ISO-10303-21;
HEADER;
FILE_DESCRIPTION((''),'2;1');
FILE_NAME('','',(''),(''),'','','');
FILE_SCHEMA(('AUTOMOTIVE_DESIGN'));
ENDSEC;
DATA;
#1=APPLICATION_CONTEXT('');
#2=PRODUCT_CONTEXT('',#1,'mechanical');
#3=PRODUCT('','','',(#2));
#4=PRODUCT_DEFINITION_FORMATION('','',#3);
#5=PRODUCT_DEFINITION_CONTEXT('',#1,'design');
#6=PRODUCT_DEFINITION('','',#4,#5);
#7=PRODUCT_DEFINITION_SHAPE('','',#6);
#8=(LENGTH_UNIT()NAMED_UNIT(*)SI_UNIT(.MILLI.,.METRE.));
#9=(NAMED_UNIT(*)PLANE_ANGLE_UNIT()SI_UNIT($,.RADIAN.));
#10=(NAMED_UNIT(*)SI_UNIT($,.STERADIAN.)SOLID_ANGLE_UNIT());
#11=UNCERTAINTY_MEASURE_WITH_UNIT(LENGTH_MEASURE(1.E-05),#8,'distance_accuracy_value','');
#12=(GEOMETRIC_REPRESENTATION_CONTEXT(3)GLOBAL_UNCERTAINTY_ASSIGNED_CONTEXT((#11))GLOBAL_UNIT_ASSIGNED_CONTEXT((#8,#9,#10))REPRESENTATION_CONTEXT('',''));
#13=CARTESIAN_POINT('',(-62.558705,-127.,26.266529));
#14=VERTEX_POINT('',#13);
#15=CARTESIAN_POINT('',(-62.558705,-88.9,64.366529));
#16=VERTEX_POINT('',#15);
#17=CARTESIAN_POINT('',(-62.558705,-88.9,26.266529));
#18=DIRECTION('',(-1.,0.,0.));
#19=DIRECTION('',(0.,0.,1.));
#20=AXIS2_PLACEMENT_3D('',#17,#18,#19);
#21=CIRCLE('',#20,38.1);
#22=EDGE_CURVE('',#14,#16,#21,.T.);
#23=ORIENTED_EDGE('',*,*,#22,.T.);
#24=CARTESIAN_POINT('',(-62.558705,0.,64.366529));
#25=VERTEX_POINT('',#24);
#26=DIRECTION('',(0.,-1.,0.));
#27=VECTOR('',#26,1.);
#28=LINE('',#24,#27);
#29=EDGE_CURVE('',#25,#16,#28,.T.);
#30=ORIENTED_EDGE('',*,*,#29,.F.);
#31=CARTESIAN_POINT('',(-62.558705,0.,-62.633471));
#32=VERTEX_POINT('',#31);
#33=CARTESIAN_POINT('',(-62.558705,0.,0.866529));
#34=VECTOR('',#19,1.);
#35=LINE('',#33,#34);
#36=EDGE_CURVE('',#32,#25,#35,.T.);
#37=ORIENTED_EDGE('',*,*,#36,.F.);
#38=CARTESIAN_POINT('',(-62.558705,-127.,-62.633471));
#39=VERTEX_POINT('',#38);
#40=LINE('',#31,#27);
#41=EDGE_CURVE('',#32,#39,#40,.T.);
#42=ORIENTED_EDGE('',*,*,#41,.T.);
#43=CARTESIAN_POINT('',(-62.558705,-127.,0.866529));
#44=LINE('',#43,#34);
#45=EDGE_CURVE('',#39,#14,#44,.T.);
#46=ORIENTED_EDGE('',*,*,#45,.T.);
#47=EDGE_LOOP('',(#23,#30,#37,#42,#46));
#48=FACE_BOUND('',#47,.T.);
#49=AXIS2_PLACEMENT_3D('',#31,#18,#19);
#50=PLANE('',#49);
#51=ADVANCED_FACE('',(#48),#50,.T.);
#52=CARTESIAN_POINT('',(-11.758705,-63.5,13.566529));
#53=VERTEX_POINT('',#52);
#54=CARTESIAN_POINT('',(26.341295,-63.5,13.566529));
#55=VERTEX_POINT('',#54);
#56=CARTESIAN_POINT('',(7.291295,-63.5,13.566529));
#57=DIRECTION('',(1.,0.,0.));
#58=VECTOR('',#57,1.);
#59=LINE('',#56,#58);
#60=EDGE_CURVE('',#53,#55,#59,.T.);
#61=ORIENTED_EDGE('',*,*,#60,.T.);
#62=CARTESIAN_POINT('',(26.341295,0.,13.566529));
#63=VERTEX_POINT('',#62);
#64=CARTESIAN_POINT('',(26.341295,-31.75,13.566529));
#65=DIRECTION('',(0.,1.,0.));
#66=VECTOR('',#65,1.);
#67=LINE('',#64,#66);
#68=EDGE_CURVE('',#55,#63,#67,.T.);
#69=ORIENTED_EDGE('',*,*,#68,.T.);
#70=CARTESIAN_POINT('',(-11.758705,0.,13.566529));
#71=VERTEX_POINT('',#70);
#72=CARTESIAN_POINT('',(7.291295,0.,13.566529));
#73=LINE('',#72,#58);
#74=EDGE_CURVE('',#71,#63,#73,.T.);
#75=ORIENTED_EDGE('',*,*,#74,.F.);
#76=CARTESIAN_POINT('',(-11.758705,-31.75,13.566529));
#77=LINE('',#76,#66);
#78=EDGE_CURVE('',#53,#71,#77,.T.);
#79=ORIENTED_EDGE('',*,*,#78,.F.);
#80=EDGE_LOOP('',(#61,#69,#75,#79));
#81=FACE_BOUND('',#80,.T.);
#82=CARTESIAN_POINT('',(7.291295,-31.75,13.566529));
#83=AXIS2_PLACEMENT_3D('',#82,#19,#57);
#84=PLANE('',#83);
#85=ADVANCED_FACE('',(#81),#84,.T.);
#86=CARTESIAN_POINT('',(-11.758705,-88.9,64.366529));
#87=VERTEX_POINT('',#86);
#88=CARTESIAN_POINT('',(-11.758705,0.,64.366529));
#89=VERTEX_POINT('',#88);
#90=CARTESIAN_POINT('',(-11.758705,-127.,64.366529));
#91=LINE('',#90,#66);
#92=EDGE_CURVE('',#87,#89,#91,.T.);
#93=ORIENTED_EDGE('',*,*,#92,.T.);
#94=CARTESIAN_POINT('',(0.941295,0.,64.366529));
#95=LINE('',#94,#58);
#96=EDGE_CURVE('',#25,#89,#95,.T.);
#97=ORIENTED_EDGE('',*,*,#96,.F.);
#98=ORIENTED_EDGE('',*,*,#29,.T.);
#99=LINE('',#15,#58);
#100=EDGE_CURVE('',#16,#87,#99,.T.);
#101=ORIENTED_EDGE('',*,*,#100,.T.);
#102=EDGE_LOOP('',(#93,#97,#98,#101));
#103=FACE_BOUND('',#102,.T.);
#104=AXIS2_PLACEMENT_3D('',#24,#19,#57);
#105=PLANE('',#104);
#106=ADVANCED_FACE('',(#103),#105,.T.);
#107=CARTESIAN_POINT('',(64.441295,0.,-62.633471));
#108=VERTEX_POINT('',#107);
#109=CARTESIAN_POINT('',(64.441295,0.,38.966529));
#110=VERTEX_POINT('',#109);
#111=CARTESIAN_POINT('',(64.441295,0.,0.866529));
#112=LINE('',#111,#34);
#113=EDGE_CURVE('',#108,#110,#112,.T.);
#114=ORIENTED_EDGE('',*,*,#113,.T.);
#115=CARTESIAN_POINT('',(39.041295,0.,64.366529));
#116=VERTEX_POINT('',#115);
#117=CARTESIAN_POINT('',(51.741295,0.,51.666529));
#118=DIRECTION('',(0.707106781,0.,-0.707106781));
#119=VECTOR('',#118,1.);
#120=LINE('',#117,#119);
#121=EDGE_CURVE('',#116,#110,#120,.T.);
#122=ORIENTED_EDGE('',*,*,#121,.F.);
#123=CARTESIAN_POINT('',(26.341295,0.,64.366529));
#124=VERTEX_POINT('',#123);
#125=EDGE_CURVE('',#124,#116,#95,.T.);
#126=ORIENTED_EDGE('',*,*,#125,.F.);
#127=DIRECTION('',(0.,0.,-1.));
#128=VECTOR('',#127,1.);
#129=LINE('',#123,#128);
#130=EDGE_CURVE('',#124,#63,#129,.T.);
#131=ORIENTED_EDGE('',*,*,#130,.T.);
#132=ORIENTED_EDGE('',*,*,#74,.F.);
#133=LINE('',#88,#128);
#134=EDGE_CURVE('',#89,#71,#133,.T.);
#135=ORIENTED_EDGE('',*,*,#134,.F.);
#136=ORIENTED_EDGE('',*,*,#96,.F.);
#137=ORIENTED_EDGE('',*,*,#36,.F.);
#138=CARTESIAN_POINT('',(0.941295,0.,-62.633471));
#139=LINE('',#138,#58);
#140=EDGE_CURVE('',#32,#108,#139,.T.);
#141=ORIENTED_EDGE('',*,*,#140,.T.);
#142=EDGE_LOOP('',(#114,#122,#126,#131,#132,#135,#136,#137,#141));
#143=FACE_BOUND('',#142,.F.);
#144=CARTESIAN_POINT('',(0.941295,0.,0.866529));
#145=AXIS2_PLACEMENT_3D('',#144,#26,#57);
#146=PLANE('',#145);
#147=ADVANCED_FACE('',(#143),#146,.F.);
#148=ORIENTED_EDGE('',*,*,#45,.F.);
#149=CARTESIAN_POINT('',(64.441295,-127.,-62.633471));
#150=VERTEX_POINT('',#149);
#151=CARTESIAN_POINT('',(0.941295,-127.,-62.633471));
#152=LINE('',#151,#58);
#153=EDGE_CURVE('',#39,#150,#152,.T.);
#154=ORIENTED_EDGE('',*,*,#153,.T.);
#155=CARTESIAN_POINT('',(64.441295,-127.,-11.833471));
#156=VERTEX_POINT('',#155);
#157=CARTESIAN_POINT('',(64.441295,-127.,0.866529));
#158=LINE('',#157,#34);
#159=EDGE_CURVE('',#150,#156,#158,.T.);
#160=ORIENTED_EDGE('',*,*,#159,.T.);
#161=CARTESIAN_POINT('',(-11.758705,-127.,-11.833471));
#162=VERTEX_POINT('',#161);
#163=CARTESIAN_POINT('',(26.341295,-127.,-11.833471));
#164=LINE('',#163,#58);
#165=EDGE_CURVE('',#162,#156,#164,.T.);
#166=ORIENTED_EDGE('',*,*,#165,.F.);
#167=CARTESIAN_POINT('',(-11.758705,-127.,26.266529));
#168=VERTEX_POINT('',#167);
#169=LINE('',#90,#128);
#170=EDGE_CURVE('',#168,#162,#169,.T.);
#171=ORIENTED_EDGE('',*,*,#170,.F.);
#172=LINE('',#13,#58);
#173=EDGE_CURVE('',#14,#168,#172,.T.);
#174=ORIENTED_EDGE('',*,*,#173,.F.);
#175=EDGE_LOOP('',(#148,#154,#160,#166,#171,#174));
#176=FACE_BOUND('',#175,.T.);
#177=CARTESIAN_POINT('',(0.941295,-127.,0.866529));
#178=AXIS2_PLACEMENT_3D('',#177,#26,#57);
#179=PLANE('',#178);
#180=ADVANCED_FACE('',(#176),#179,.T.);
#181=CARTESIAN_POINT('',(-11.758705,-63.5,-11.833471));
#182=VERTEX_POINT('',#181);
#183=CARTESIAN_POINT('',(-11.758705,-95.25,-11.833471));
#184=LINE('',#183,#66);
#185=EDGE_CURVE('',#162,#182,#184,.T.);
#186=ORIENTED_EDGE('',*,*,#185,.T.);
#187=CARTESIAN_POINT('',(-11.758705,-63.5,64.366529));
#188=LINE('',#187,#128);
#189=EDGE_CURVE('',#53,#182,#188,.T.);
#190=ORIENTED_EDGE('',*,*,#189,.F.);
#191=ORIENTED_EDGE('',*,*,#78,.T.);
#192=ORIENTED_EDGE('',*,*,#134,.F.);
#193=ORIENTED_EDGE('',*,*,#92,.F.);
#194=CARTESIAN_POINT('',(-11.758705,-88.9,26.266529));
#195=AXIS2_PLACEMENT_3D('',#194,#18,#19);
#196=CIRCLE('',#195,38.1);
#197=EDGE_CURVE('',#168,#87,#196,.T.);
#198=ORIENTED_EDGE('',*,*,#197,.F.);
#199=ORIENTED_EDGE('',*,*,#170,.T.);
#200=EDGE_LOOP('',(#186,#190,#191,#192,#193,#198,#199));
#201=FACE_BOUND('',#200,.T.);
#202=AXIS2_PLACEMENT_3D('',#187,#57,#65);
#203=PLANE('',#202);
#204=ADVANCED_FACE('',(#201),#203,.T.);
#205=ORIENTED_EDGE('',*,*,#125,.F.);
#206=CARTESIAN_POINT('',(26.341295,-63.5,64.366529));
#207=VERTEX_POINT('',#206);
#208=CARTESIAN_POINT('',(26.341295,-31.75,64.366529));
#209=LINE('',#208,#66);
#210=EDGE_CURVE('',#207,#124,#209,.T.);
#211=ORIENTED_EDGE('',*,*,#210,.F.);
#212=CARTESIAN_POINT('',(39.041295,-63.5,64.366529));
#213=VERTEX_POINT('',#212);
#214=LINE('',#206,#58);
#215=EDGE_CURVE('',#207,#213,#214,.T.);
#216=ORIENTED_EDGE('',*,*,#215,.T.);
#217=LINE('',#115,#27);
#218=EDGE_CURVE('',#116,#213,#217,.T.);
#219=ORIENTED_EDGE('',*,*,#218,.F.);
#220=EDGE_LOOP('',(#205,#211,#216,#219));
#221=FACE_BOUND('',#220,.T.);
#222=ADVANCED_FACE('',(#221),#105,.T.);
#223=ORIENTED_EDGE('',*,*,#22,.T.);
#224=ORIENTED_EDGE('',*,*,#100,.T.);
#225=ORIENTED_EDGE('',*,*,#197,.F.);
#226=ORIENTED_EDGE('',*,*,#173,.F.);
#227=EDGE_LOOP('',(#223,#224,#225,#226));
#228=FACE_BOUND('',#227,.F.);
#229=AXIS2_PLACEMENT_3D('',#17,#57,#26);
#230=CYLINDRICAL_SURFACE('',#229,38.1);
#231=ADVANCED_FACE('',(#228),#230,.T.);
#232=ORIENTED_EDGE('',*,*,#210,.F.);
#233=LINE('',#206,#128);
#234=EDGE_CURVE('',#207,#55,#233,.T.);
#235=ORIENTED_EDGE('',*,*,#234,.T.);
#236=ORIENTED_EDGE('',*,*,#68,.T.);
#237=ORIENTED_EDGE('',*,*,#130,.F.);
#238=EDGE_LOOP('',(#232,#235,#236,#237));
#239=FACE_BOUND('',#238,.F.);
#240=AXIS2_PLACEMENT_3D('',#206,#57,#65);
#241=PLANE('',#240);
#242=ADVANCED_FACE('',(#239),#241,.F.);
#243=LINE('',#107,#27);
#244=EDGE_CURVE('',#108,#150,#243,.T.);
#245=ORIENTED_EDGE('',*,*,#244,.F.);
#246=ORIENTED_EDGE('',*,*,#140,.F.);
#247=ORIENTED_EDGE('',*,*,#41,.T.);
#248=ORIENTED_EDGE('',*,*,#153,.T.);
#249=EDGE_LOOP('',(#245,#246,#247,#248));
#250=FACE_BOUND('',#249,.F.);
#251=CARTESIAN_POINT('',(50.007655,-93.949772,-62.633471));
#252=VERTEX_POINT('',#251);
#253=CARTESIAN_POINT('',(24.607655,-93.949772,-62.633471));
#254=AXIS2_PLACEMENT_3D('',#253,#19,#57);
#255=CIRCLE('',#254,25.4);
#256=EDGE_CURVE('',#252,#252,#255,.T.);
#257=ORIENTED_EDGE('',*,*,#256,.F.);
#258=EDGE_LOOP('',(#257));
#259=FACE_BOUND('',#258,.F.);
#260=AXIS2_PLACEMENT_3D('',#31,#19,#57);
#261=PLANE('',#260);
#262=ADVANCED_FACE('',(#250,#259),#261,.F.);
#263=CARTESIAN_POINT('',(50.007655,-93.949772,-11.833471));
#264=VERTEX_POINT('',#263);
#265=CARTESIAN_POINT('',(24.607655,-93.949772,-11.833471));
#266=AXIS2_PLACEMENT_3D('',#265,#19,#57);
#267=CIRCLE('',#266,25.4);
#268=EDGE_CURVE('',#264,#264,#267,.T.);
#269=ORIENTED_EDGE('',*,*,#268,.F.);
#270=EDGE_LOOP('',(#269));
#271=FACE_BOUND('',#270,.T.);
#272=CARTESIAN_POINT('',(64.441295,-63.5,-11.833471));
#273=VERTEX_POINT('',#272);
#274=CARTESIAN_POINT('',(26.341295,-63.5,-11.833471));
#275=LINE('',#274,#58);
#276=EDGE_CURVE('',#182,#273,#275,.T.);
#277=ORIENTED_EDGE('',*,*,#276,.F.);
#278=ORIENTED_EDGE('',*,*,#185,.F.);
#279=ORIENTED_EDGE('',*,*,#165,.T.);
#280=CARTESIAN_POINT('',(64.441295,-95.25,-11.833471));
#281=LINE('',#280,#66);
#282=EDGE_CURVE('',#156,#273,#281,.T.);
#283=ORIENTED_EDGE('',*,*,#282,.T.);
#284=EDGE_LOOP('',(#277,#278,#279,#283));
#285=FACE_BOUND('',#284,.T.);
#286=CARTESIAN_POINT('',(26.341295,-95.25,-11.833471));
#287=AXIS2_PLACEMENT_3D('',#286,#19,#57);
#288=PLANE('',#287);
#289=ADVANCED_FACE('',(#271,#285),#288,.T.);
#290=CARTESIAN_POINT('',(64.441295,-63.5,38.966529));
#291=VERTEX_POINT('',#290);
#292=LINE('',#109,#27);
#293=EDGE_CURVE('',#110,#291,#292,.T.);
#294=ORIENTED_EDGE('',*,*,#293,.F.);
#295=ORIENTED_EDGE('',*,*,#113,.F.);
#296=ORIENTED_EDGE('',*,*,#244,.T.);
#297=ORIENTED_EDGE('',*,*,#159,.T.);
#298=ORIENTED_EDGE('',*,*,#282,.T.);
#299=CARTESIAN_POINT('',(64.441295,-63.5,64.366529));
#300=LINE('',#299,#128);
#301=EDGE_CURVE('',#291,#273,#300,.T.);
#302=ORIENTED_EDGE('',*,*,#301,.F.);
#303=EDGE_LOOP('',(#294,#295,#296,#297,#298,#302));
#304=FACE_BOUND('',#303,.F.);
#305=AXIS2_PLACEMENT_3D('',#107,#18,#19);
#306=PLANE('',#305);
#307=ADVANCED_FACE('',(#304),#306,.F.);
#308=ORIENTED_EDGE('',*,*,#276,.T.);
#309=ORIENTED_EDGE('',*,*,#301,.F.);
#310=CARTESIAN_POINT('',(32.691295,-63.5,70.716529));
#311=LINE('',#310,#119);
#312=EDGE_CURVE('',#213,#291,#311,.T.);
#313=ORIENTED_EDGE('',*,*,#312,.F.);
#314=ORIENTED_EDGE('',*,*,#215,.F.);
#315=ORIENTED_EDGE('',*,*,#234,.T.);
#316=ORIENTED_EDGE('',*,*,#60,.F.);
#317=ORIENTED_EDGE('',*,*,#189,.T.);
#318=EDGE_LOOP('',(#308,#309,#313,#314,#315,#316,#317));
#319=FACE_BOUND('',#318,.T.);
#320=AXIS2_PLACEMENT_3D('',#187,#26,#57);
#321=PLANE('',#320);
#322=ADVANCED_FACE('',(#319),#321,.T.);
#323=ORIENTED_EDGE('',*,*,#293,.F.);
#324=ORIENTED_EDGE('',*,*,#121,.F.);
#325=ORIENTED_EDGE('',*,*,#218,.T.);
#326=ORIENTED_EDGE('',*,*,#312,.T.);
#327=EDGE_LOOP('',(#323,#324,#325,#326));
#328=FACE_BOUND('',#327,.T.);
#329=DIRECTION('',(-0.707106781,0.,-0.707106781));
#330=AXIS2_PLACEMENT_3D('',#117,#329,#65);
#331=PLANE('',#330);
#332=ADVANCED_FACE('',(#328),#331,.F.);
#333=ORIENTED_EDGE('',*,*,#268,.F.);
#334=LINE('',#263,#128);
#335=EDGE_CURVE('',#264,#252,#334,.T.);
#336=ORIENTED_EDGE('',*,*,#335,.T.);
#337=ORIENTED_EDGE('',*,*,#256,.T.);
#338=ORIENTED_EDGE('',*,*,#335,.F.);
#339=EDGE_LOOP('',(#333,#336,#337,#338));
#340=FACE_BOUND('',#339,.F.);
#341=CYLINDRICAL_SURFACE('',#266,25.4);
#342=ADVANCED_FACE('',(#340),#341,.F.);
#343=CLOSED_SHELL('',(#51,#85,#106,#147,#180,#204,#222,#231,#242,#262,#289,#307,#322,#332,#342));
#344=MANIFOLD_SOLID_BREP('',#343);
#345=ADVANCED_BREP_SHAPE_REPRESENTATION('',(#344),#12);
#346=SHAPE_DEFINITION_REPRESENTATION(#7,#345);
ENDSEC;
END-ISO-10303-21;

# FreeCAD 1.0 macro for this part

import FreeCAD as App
import Part
import Sketcher

V = App.Vector
Q = App.Units.Quantity


def edges_at(feature, points):
    """Names of the edges that pass closest to the given points."""
    edges = feature.Shape.Edges
    near = lambda p: min(range(len(edges)), key=lambda i: edges[i].distToShape(Part.Vertex(*p))[0])
    return sorted({f"Edge{near(p) + 1}" for p in points})


def add_polygon(sketch, points):
    """Adds a closed chain of lines whose ends are joined by coincident constraints."""
    first, n = sketch.GeometryCount, len(points)
    for a, b in zip(points, points[1:] + points[:1]):
        sketch.addGeometry(Part.LineSegment(App.Vector(*a, 0), App.Vector(*b, 0)), False)
    for i in range(n):
        sketch.addConstraint(Sketcher.Constraint("Coincident", first + i, 2, first + (i + 1) % n, 1))

doc = App.newDocument("Part")
body = doc.addObject("PartDesign::Body", "Body")

# Sketch on XZ plane
sketch1 = body.newObject("Sketcher::SketchObject", "Sketch")
sketch1.AttachmentSupport = (doc.getObject("XZ_Plane"), [""])
sketch1.MapMode = "FlatFace"
add_polygon(sketch1, [(-62.558705, 64.366529), (-62.558705, -62.633471), (64.441295, -62.633471), (64.441295, 64.366529)])  # lines 0-3
sketch1.addConstraint([
    Sketcher.Constraint("Vertical", 0),
    Sketcher.Constraint("Horizontal", 1),
    Sketcher.Constraint("Vertical", 2),
    Sketcher.Constraint("Horizontal", 3),
    Sketcher.Constraint("Equal", 3, 0),
    Sketcher.Constraint("DistanceX", 1, 1, 1, 2, Q("5 in")),
    Sketcher.Constraint("DistanceY", 0, 2, -1, 1, Q("62.633471 mm")),
    Sketcher.Constraint("DistanceX", 0, 2, -1, 1, Q("62.558705 mm")),
])
pad1 = body.newObject("PartDesign::Pad", "Pad")
pad1.Profile = sketch1
pad1.Length = Q("5 in")

# Sketch on XY plane
sketch2 = body.newObject("Sketcher::SketchObject", "Sketch001")
sketch2.AttachmentSupport = (doc.getObject("XY_Plane"), [""])
sketch2.MapMode = "FlatFace"
sketch2.AttachmentOffset = App.Placement(V(0, 0, 64.366529), App.Rotation())
add_polygon(sketch2, [(-11.758705, -63.5), (-11.758705, -127), (64.441295, -127), (64.441295, -63.5)])  # lines 0-3
sketch2.addConstraint([
    Sketcher.Constraint("Vertical", 0),
    Sketcher.Constraint("Horizontal", 1),
    Sketcher.Constraint("Vertical", 2),
    Sketcher.Constraint("Horizontal", 3),
    Sketcher.Constraint("DistanceX", 1, 1, 1, 2, Q("3 in")),
    Sketcher.Constraint("DistanceY", 0, 2, 0, 1, Q("2.5 in")),
    Sketcher.Constraint("DistanceY", 0, 2, -1, 1, Q("5 in")),
    Sketcher.Constraint("DistanceX", 0, 2, -1, 1, Q("11.758705 mm")),
])
pocket1 = body.newObject("PartDesign::Pocket", "Pocket")
pocket1.Profile = sketch2
pocket1.Length = Q("3 in")

# Sketch on XY plane
sketch3 = body.newObject("Sketcher::SketchObject", "Sketch002")
sketch3.AttachmentSupport = (doc.getObject("XY_Plane"), [""])
sketch3.MapMode = "FlatFace"
sketch3.AttachmentOffset = App.Placement(V(0, 0, -11.833471), App.Rotation())
sketch3.addGeometry(Part.Circle(V(24.607655, -93.949772, 0), V(0, 0, 1), 25.4), False)
sketch3.addConstraint([
    Sketcher.Constraint("Diameter", 0, Q("2 in")),
    Sketcher.Constraint("DistanceY", 0, 3, -1, 1, Q("93.949772 mm")),
    Sketcher.Constraint("DistanceX", -1, 1, 0, 3, Q("24.607655 mm")),
])
pocket2 = body.newObject("PartDesign::Pocket", "Pocket001")
pocket2.Profile = sketch3
pocket2.Length = Q("3 in")

# Sketch on XY plane
sketch4 = body.newObject("Sketcher::SketchObject", "Sketch003")
sketch4.AttachmentSupport = (doc.getObject("XY_Plane"), [""])
sketch4.MapMode = "FlatFace"
sketch4.AttachmentOffset = App.Placement(V(0, 0, 64.366529), App.Rotation())
add_polygon(sketch4, [(-11.758705, 0), (-11.758705, -63.5), (26.341295, -63.5), (26.341295, 0)])  # lines 0-3
sketch4.addConstraint([
    Sketcher.Constraint("Vertical", 0),
    Sketcher.Constraint("Horizontal", 1),
    Sketcher.Constraint("Vertical", 2),
    Sketcher.Constraint("Horizontal", 3),
    Sketcher.Constraint("PointOnObject", 2, 2, -1),
    Sketcher.Constraint("DistanceX", 1, 1, 1, 2, Q("1.5 in")),
    Sketcher.Constraint("DistanceY", 0, 2, 0, 1, Q("2.5 in")),
    Sketcher.Constraint("DistanceX", 0, 2, -1, 1, Q("11.758705 mm")),
])
pocket3 = body.newObject("PartDesign::Pocket", "Pocket002")
pocket3.Profile = sketch4
pocket3.Length = Q("2 in")
doc.recompute()

fillet = body.newObject("PartDesign::Fillet", "Fillet")
fillet.Base = (pocket3, edges_at(pocket3, [(-37.159, -127, 64.367)]))
fillet.Radius = Q("1.5 in")
doc.recompute()

chamfer = body.newObject("PartDesign::Chamfer", "Chamfer")
chamfer.Base = (fillet, edges_at(fillet, [(64.441, -31.75, 64.367)]))
chamfer.Size = Q("1 in")

doc.recompute()
